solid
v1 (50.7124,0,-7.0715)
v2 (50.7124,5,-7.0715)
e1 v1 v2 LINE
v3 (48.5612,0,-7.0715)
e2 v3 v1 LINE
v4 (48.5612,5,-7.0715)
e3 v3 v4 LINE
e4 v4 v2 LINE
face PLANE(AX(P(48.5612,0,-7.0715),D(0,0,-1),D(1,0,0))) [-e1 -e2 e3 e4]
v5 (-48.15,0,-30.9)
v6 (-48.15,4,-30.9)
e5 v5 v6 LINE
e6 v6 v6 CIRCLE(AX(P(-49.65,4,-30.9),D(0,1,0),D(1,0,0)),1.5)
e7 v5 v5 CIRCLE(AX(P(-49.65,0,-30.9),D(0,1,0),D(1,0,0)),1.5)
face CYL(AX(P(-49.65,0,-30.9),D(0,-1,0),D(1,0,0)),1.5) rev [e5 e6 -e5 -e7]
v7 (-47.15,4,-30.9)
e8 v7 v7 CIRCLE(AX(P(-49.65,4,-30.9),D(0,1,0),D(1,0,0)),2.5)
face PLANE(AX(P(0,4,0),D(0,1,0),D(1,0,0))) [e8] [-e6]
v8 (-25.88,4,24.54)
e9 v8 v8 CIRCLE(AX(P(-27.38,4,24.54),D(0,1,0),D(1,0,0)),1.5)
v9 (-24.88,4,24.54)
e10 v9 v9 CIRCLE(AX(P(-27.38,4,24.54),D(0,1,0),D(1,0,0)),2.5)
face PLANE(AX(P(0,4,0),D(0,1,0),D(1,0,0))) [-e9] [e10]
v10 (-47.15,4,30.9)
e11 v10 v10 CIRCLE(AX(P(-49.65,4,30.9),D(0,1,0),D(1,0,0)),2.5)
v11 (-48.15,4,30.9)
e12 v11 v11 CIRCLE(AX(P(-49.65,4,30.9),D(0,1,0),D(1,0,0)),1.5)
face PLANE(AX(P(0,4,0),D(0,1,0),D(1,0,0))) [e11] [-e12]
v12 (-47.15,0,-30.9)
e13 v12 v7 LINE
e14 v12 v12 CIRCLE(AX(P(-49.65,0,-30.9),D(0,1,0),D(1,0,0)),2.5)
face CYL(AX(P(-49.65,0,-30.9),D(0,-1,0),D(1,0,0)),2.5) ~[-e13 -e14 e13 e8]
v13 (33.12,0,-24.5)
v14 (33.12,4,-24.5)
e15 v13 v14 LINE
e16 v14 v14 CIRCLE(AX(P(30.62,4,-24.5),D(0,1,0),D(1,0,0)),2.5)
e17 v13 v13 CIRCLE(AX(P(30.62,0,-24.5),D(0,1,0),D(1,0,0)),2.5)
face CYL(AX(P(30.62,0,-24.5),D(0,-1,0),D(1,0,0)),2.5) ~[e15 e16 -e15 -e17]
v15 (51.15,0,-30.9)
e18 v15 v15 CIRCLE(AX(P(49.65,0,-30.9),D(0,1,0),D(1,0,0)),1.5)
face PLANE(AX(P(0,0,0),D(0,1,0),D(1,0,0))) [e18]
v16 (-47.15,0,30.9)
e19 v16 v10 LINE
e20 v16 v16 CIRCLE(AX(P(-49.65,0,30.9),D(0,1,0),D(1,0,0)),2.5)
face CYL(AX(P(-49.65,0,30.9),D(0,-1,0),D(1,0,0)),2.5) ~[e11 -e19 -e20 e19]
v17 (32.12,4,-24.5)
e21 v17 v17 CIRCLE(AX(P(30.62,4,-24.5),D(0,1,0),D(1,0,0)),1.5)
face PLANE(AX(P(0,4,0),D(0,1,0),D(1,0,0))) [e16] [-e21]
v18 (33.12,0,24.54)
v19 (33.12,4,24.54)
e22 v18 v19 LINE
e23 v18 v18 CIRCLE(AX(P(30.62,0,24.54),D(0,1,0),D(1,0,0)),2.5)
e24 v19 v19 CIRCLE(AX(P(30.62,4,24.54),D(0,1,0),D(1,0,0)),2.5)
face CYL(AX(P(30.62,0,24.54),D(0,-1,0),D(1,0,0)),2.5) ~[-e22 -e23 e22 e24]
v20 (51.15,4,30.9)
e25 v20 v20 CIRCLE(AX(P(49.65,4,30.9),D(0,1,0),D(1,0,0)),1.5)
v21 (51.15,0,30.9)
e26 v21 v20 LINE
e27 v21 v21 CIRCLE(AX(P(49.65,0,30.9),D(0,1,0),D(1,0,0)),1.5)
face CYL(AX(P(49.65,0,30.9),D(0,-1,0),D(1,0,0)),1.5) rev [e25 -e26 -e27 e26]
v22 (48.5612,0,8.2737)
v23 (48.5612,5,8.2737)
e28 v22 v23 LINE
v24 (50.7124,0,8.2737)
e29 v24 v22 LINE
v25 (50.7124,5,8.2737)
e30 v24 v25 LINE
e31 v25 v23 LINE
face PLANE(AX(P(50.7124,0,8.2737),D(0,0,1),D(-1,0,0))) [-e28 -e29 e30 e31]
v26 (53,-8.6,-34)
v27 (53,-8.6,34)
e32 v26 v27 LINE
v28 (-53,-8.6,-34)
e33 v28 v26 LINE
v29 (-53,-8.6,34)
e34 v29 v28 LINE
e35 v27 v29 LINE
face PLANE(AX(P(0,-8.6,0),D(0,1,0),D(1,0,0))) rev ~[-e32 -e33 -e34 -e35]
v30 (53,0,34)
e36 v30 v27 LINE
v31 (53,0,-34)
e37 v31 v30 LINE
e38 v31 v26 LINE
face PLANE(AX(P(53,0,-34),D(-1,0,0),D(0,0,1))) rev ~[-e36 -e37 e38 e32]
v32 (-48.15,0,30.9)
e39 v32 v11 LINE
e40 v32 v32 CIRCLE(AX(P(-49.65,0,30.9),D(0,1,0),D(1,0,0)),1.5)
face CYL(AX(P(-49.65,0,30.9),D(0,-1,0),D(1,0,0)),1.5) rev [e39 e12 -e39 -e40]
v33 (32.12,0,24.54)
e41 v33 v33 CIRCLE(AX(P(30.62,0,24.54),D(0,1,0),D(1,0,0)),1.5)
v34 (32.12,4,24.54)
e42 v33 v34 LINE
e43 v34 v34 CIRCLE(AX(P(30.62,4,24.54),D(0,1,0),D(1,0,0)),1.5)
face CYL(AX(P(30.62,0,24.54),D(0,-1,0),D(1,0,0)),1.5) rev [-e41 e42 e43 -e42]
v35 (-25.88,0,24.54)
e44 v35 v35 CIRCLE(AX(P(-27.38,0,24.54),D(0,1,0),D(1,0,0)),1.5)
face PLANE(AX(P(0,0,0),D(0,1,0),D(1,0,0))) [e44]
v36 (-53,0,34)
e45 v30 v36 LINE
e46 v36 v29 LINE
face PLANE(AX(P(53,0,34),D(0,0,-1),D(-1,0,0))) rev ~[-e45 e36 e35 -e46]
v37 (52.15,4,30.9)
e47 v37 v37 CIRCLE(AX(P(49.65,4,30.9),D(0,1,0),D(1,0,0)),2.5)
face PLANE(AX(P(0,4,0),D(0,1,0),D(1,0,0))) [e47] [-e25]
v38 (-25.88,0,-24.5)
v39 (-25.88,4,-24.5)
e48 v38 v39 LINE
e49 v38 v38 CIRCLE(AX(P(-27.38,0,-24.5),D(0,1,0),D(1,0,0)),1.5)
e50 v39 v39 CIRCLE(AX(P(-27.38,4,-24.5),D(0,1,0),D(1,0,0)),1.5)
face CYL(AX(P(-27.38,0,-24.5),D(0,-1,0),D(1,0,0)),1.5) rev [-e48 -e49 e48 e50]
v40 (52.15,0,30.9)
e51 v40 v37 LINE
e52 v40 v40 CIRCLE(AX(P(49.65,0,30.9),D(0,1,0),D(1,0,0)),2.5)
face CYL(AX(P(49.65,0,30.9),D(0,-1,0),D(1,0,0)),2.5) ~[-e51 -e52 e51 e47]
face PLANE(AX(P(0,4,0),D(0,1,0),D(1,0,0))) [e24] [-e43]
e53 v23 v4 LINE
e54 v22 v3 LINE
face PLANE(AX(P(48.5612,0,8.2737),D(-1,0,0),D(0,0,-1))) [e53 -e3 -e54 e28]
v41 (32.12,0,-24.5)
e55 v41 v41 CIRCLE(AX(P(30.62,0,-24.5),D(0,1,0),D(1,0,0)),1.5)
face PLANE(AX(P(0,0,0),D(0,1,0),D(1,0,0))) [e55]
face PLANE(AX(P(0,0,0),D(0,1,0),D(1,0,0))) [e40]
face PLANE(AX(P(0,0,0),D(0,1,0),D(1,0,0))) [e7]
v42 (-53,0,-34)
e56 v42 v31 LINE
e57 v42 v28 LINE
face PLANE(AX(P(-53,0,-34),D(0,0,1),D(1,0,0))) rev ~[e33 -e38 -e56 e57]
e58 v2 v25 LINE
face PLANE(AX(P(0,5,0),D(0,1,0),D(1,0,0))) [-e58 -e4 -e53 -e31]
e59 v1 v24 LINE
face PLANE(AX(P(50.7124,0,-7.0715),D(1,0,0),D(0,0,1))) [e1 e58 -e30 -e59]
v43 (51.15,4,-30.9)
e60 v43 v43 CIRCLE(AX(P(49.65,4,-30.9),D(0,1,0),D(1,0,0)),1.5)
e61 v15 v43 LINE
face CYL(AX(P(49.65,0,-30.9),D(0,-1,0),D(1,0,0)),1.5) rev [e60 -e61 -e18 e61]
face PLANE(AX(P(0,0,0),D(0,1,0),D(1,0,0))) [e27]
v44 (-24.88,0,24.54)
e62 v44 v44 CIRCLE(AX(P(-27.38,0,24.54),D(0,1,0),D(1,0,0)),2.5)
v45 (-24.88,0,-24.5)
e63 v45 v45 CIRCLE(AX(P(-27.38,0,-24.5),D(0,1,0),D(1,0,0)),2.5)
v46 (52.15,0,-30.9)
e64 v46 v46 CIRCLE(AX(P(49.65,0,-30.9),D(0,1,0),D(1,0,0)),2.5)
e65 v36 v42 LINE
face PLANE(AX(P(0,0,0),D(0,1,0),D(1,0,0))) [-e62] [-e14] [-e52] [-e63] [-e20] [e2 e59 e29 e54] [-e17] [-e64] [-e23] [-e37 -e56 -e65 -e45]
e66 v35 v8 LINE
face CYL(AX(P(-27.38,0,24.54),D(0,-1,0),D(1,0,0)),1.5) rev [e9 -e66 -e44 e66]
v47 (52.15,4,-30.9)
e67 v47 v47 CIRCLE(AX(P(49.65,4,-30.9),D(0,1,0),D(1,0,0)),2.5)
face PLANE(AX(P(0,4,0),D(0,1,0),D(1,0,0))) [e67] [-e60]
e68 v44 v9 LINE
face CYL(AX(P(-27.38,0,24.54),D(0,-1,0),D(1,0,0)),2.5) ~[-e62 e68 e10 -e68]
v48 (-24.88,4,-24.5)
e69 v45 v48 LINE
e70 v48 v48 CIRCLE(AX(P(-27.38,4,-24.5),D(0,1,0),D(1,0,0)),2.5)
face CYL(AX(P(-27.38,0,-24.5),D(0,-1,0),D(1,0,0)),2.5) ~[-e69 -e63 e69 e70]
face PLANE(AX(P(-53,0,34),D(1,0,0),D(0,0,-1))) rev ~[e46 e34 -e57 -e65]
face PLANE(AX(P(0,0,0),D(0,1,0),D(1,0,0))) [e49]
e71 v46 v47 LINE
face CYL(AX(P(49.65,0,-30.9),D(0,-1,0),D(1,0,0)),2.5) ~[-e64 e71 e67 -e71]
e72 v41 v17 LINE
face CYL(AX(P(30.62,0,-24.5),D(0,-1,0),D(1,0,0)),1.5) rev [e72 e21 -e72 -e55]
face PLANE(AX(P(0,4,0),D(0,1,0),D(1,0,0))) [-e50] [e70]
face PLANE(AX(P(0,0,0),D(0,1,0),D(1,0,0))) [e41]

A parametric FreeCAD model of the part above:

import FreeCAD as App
import Part
import Sketcher
from FreeCAD import Vector
Q = App.Units.Quantity


def add_polygon(sketch, points):
    """Adds a closed chain of lines whose ends are joined by coincident constraints."""
    first, n = sketch.GeometryCount, len(points)
    for a, b in zip(points, points[1:] + points[:1]):
        sketch.addGeometry(Part.LineSegment(App.Vector(*a, 0), App.Vector(*b, 0)), False)
    for i in range(n):
        sketch.addConstraint(Sketcher.Constraint("Coincident", first + i, 2, first + (i + 1) % n, 1))

doc = App.newDocument("Part")
body = doc.addObject("PartDesign::Body", "Body")

sketch1 = doc.addObject("Sketcher::SketchObject", "Sketch")
body.addObject(sketch1)
sketch1.AttachmentSupport = (doc.XZ_Plane, [""])
sketch1.MapMode = "FlatFace"
add_polygon(sketch1, [(-53, 34), (53, 34), (53, -34), (-53, -34)])
sketch1.addConstraint([
    Sketcher.Constraint("Horizontal", 0),
    Sketcher.Constraint("Vertical", 1),
    Sketcher.Constraint("Horizontal", 2),
    Sketcher.Constraint("Vertical", 3),
    Sketcher.Constraint("Symmetric", 0, 2, 2, 2, -1, 1),
    Sketcher.Constraint("DistanceX", 0, 1, 0, 2, Q("106 mm")),
    Sketcher.Constraint("DistanceY", 1, 2, 1, 1, Q("68 mm")),
])
pad1 = doc.addObject("PartDesign::Pad", "Pad")
body.addObject(pad1)
pad1.Profile = sketch1
pad1.Length = 8.6

sketch2 = doc.addObject("Sketcher::SketchObject", "Sketch001")
body.addObject(sketch2)
sketch2.AttachmentSupport = (doc.XZ_Plane, [""])
sketch2.MapMode = "FlatFace"
sketch2.addGeometry([
    Part.Circle(Vector(-49.65, -30.9, 0), Vector(0, 0, 1), 2.5),
    Part.Circle(Vector(-49.65, -30.9, 0), Vector(0, 0, 1), 1.5),
    Part.Circle(Vector(-49.65, 30.9, 0), Vector(0, 0, 1), 2.5),
    Part.Circle(Vector(-49.65, 30.9, 0), Vector(0, 0, 1), 1.5),
    Part.Circle(Vector(49.65, 30.9, 0), Vector(0, 0, 1), 2.5),
    Part.Circle(Vector(49.65, 30.9, 0), Vector(0, 0, 1), 1.5),
    Part.Circle(Vector(49.65, -30.9, 0), Vector(0, 0, 1), 2.5),
    Part.Circle(Vector(49.65, -30.9, 0), Vector(0, 0, 1), 1.5),
    Part.Circle(Vector(-27.38, 24.54, 0), Vector(0, 0, 1), 2.5),
    Part.Circle(Vector(-27.38, 24.54, 0), Vector(0, 0, 1), 1.5),
    Part.Circle(Vector(30.62, 24.54, 0), Vector(0, 0, 1), 2.5),
    Part.Circle(Vector(30.62, 24.54, 0), Vector(0, 0, 1), 1.5),
    Part.Circle(Vector(-27.38, -24.5, 0), Vector(0, 0, 1), 2.5),
    Part.Circle(Vector(-27.38, -24.5, 0), Vector(0, 0, 1), 1.5),
    Part.Circle(Vector(30.62, -24.5, 0), Vector(0, 0, 1), 2.5),
    Part.Circle(Vector(30.62, -24.5, 0), Vector(0, 0, 1), 1.5),
], False)
sketch2.addConstraint([
    Sketcher.Constraint("Coincident", 1, 3, 0, 3),
    Sketcher.Constraint("Coincident", 3, 3, 2, 3),
    Sketcher.Constraint("Coincident", 5, 3, 4, 3),
    Sketcher.Constraint("Coincident", 7, 3, 6, 3),
    Sketcher.Constraint("Coincident", 9, 3, 8, 3),
    Sketcher.Constraint("Coincident", 11, 3, 10, 3),
    Sketcher.Constraint("Coincident", 13, 3, 12, 3),
    Sketcher.Constraint("Coincident", 15, 3, 14, 3),
    Sketcher.Constraint("Equal", 0, 2),
    Sketcher.Constraint("Equal", 1, 3),
    Sketcher.Constraint("Equal", 2, 4),
    Sketcher.Constraint("Equal", 3, 5),
    Sketcher.Constraint("Equal", 4, 6),
    Sketcher.Constraint("Equal", 5, 7),
    Sketcher.Constraint("Equal", 6, 8),
    Sketcher.Constraint("Equal", 7, 9),
    Sketcher.Constraint("Equal", 8, 10),
    Sketcher.Constraint("Equal", 9, 11),
    Sketcher.Constraint("Equal", 10, 12),
    Sketcher.Constraint("Equal", 11, 13),
    Sketcher.Constraint("Equal", 12, 14),
    Sketcher.Constraint("Equal", 13, 15),
    Sketcher.Constraint("Symmetric", 0, 3, 4, 3, -1, 1),
    Sketcher.Constraint("Symmetric", 2, 3, 6, 3, -1, 1),
    Sketcher.Constraint("Symmetric", 2, 3, 4, 3, -2),
    Sketcher.Constraint("Horizontal", 9, 3, 10, 3),
    Sketcher.Constraint("Horizontal", 13, 3, 14, 3),
    Sketcher.Constraint("Vertical", 9, 3, 12, 3),
    Sketcher.Constraint("Vertical", 11, 3, 14, 3),
    Sketcher.Constraint("Diameter", 0, Q("5 mm")),
    Sketcher.Constraint("Diameter", 1, Q("3 mm")),
    Sketcher.Constraint("DistanceY", 0, 3, 2, 3, Q("61.8 mm")),
    Sketcher.Constraint("DistanceX", 2, 3, 4, 3, Q("99.3 mm")),
    Sketcher.Constraint("DistanceX", 8, 3, 10, 3, Q("58 mm")),
    Sketcher.Constraint("DistanceY", 12, 3, -1, 1, Q("24.5 mm")),
    Sketcher.Constraint("DistanceX", 8, 3, -1, 1, Q("27.38 mm")),
    Sketcher.Constraint("DistanceY", -1, 1, 8, 3, Q("24.54 mm")),
])
pad2 = doc.addObject("PartDesign::Pad", "Pad001")
body.addObject(pad2)
pad2.Profile = sketch2
pad2.Length = 4
pad2.Reversed = True

sketch3 = doc.addObject("Sketcher::SketchObject", "Sketch002")
body.addObject(sketch3)
sketch3.AttachmentSupport = (doc.XZ_Plane, [""])
sketch3.MapMode = "FlatFace"
add_polygon(sketch3, [(50.7124, -7.0715), (48.5612, -7.0715), (48.5612, 8.2737), (50.7124, 8.2737)])
sketch3.addConstraint([
    Sketcher.Constraint("Horizontal", 0),
    Sketcher.Constraint("Vertical", 1),
    Sketcher.Constraint("Horizontal", 2),
    Sketcher.Constraint("Vertical", 3),
    Sketcher.Constraint("DistanceX", 0, 2, 0, 1, Q("2.1512 mm")),
    Sketcher.Constraint("DistanceY", 1, 1, 1, 2, Q("15.3452 mm")),
    Sketcher.Constraint("DistanceX", -1, 1, 0, 2, Q("48.5612 mm")),
    Sketcher.Constraint("DistanceY", 0, 2, -1, 1, Q("7.0715 mm")),
])
pad3 = doc.addObject("PartDesign::Pad", "Pad002")
body.addObject(pad3)
pad3.Profile = sketch3
pad3.Length = 5
pad3.Reversed = True

doc.recompute()
